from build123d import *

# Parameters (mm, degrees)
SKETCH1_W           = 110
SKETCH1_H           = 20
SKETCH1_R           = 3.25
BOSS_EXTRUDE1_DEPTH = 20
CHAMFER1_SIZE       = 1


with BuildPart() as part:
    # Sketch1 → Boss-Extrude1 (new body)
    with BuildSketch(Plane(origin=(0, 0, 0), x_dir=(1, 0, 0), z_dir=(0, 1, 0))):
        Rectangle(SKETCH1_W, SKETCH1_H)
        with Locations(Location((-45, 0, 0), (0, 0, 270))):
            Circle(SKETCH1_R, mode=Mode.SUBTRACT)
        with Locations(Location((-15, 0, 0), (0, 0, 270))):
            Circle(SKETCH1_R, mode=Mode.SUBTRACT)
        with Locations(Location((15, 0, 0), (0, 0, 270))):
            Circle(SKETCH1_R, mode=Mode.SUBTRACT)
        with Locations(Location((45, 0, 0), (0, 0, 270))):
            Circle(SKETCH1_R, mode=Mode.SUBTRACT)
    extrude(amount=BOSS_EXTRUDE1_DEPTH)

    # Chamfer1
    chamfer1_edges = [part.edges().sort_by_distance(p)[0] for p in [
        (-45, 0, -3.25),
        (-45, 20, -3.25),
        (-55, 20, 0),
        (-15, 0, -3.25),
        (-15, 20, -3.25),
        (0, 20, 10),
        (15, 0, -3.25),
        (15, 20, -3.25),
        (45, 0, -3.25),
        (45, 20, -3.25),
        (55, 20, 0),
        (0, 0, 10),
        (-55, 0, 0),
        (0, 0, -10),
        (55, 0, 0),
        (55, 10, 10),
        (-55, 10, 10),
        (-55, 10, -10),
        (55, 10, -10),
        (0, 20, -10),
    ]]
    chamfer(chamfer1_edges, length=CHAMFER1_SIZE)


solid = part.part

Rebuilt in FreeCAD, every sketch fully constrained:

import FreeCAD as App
import Part
import Sketcher

V = App.Vector

doc = App.newDocument("Part")
body = doc.addObject("PartDesign::Body", "Body")

# Sketch on XZ plane
sketch1 = body.newObject("Sketcher::SketchObject", "Sketch")
sketch1.AttachmentSupport = (doc.getObject("XZ_Plane"), [""])
sketch1.MapMode = "FlatFace"
sketch1.addGeometry([
    Part.LineSegment(V(-55, -10, 0), V(-55, 10, 0)),  # 0
    Part.LineSegment(V(-55, 10, 0), V(55, 10, 0)),  # 1
    Part.LineSegment(V(55, 10, 0), V(55, -10, 0)),  # 2
    Part.LineSegment(V(55, -10, 0), V(-55, -10, 0)),  # 3
    Part.Circle(V(-45, 0, 0), V(0, 0, 1), 3.2),  # 4
    Part.Circle(V(-15, 0, 0), V(0, 0, 1), 3.2),  # 5
    Part.Circle(V(15, 0, 0), V(0, 0, 1), 3.2),  # 6
    Part.Circle(V(45, 0, 0), V(0, 0, 1), 3.2),  # 7
], False)
sketch1.addConstraint([
    Sketcher.Constraint("Coincident", 0, 2, 1, 1),
    Sketcher.Constraint("Coincident", 1, 2, 2, 1),
    Sketcher.Constraint("Coincident", 2, 2, 3, 1),
    Sketcher.Constraint("Coincident", 3, 2, 0, 1),
    Sketcher.Constraint("Vertical", 0),
    Sketcher.Constraint("Horizontal", 1),
    Sketcher.Constraint("Vertical", 2),
    Sketcher.Constraint("Horizontal", 3),
    Sketcher.Constraint("Equal", 4, 5),
    Sketcher.Constraint("Equal", 5, 6),
    Sketcher.Constraint("Equal", 6, 7),
    Sketcher.Constraint("Symmetric", 5, 3, 6, 3, -1, 1),
    Sketcher.Constraint("Symmetric", 4, 3, 7, 3, -1, 1),
    Sketcher.Constraint("Symmetric", 0, 2, 2, 2, -1, 1),
    Sketcher.Constraint("PointOnObject", 4, 3, -1),
    Sketcher.Constraint("PointOnObject", 5, 3, -1),
    Sketcher.Constraint("Diameter", 4, 6.5),
    Sketcher.Constraint("DistanceX", 1, 1, 1, 2, 110.0),
    Sketcher.Constraint("DistanceY", 0, 1, 0, 2, 20.0),
    Sketcher.Constraint("DistanceX", 4, 3, -1, 1, 45.0),
    Sketcher.Constraint("DistanceX", 5, 3, -1, 1, 15.0),
])
pad1 = body.newObject("PartDesign::Pad", "Pad")
pad1.Profile = sketch1
pad1.Length = 20
pad1.Reversed = True
doc.recompute()

chamfer = body.newObject("PartDesign::Chamfer", "Chamfer")
chamfer.Base = (pad1, ["Edge1"])
chamfer.UseAllEdges = True
chamfer.Size = 1

doc.recompute()
